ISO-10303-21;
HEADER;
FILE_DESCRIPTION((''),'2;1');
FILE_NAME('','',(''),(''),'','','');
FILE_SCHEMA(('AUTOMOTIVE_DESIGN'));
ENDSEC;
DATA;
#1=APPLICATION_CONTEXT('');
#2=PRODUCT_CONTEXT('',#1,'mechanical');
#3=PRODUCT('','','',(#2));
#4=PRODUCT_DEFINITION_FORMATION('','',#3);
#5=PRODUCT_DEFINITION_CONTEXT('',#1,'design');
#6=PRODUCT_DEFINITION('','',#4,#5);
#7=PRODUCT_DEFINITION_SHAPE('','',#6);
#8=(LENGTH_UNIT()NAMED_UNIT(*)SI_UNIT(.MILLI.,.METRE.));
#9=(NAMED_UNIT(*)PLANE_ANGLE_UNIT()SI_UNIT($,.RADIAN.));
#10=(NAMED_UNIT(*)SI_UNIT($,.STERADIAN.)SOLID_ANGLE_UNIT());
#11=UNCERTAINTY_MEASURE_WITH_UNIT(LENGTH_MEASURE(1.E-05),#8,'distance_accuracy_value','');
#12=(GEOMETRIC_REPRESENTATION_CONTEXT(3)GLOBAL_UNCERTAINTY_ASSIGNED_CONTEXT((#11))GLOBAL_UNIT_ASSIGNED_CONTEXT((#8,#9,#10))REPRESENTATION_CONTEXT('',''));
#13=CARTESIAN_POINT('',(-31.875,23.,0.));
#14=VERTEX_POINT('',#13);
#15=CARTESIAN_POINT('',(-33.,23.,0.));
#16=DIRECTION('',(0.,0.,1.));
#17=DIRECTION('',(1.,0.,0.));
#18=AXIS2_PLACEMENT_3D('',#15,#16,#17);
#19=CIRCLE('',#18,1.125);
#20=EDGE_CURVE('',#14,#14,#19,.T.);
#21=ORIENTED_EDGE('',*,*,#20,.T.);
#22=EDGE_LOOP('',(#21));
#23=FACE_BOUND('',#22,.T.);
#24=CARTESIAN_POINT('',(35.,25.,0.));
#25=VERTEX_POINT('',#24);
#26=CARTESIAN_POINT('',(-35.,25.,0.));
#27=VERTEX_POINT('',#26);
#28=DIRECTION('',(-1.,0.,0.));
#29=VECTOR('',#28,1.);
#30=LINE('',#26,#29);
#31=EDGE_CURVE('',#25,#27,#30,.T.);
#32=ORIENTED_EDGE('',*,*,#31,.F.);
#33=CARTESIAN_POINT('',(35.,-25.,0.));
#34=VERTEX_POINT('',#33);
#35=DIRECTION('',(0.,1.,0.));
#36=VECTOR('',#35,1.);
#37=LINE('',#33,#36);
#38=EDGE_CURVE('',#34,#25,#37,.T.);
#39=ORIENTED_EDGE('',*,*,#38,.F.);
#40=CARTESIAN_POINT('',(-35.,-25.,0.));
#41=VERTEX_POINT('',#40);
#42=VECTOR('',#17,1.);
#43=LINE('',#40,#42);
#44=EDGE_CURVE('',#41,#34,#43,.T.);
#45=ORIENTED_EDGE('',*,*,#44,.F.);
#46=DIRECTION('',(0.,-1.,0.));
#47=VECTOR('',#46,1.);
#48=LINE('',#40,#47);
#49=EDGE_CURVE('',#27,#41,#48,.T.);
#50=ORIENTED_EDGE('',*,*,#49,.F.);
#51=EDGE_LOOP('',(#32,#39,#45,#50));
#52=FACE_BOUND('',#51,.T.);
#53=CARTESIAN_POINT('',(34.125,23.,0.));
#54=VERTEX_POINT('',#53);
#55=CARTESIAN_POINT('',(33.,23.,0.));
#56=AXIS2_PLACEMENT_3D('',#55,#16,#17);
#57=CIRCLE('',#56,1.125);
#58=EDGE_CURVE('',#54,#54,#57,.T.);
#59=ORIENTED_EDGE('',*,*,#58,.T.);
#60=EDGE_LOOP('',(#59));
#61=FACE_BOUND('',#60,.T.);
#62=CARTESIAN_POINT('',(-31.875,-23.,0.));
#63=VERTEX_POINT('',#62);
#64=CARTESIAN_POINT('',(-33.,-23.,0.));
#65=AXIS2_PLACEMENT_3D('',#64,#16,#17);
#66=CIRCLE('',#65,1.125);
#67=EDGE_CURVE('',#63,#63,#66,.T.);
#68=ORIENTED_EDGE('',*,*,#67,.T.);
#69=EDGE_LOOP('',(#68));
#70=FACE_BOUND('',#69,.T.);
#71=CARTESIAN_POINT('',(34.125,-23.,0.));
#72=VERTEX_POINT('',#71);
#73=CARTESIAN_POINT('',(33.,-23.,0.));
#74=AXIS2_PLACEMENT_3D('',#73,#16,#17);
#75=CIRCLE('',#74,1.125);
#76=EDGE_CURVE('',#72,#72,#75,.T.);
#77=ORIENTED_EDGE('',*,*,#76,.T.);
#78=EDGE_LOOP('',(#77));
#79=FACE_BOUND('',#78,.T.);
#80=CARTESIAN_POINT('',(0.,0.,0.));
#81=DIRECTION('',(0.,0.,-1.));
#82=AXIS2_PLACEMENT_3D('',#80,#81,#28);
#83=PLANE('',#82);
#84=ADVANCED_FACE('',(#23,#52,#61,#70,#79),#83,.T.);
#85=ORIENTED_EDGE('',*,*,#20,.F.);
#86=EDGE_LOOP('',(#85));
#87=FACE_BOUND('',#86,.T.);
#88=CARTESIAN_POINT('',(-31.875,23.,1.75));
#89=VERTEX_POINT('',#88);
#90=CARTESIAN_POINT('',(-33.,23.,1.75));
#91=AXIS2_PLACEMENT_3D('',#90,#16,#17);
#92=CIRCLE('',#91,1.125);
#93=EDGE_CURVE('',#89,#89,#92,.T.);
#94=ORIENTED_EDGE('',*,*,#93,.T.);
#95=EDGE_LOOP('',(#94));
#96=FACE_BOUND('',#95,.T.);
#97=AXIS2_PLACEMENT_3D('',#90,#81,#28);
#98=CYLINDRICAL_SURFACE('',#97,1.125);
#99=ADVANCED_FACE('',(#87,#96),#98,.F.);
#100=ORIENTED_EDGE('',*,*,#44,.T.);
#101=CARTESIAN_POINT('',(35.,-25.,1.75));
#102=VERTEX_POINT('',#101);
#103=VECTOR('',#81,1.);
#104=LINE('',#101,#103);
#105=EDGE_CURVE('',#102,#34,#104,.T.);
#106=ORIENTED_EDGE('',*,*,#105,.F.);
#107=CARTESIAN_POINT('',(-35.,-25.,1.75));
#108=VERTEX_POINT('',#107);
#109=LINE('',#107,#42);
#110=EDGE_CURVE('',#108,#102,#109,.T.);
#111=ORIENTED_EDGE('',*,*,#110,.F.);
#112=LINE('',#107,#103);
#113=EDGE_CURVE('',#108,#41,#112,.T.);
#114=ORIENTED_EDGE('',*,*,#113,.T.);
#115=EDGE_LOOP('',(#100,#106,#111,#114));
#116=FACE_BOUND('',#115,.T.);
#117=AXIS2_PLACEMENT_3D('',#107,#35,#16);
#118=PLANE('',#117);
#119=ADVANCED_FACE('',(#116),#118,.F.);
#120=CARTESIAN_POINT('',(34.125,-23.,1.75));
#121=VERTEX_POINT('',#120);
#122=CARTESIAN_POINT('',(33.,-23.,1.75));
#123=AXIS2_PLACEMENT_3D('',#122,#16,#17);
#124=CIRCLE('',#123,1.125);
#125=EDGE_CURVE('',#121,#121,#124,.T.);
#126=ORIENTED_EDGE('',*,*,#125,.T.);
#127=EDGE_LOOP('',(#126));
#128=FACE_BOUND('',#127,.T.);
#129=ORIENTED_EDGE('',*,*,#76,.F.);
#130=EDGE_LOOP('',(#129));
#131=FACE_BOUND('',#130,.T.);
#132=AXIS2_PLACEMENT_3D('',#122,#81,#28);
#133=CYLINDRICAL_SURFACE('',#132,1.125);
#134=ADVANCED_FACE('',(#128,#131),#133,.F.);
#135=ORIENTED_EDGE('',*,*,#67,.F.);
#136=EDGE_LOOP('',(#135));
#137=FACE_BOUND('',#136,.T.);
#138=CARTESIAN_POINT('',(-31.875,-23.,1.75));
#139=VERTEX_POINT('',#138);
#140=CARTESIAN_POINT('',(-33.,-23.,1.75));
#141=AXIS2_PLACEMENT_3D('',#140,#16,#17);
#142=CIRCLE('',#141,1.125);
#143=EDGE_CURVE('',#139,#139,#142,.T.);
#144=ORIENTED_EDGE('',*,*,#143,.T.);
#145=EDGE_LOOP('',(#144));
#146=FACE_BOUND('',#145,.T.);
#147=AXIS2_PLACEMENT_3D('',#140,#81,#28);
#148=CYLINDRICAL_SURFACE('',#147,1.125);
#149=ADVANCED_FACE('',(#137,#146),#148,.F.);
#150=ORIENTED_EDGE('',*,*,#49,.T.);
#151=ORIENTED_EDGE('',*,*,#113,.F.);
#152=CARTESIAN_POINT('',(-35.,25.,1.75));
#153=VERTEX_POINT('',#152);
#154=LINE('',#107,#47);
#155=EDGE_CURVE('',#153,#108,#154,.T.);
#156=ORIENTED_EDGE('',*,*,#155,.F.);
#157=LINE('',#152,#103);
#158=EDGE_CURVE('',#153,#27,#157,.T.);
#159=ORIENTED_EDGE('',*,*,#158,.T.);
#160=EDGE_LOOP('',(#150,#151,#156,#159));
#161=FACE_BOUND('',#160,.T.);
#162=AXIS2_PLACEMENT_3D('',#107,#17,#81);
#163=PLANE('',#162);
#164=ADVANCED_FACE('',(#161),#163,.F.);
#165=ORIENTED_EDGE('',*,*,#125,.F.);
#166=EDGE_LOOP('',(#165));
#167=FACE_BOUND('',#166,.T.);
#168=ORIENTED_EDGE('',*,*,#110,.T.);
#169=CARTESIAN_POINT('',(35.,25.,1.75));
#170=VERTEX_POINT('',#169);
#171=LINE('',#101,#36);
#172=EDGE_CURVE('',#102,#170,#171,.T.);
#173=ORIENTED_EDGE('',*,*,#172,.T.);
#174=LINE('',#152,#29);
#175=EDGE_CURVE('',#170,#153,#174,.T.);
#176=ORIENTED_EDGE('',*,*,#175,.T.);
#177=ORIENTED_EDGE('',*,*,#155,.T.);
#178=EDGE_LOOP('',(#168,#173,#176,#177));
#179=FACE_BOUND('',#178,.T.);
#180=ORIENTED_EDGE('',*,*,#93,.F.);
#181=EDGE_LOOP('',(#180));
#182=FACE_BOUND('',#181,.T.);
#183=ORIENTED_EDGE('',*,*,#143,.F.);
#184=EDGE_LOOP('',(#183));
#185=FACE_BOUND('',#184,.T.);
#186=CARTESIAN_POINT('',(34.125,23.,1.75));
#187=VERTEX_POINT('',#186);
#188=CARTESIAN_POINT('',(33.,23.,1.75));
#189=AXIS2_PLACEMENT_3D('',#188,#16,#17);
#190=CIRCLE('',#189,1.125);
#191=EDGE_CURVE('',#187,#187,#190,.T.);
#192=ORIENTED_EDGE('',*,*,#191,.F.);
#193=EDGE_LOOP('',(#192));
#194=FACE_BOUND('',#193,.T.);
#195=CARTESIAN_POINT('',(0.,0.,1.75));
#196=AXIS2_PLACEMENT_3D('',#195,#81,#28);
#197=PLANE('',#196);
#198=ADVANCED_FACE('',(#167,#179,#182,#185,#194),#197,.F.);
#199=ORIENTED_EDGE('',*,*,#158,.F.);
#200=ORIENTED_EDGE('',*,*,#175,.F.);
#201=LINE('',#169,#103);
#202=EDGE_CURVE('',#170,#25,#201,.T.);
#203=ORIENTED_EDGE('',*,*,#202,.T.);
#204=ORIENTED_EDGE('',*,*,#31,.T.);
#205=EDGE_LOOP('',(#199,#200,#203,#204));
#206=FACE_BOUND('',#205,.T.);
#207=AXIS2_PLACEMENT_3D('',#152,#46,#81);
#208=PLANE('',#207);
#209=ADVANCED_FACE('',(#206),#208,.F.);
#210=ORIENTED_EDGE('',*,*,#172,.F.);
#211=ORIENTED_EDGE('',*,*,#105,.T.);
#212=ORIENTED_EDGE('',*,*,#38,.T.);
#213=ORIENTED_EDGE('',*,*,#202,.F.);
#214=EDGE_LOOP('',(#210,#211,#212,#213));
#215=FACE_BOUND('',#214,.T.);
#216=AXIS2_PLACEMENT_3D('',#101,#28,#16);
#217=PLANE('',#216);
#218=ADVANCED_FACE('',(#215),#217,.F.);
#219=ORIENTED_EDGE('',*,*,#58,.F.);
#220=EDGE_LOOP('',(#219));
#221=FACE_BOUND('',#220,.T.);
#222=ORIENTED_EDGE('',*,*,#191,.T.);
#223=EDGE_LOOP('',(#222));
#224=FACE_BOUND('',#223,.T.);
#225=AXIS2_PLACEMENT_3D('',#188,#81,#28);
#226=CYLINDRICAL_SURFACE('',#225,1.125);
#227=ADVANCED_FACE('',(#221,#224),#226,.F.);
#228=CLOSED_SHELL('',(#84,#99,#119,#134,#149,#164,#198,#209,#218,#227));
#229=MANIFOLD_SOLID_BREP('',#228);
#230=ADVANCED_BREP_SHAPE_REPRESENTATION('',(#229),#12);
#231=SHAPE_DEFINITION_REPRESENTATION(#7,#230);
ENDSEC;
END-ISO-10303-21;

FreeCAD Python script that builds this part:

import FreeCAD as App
import Part
import Sketcher
from FreeCAD import Vector
Q = App.Units.Quantity

doc = App.newDocument("Part")
body = doc.addObject("PartDesign::Body", "Body")

sketch1 = body.newObject("Sketcher::SketchObject", "Sketch")
sketch1.AttachmentSupport = (doc.getObject("XY_Plane"), [""])
sketch1.MapMode = "FlatFace"
sketch1.addGeometry([
    Part.LineSegment(Vector(-35, 25, 0), Vector(-35, -25, 0)),
    Part.LineSegment(Vector(-35, -25, 0), Vector(35, -25, 0)),
    Part.LineSegment(Vector(35, -25, 0), Vector(35, 25, 0)),
    Part.LineSegment(Vector(35, 25, 0), Vector(-35, 25, 0)),
    Part.Circle(Vector(-33, -23, 0), Vector(0, 0, 1), 1.1),
    Part.Circle(Vector(33, -23, 0), Vector(0, 0, 1), 1.1),
    Part.Circle(Vector(-33, 23, 0), Vector(0, 0, 1), 1.1),
    Part.Circle(Vector(33, 23, 0), Vector(0, 0, 1), 1.1),
], False)
sketch1.addConstraint([
    Sketcher.Constraint("Coincident", 0, 2, 1, 1),
    Sketcher.Constraint("Coincident", 1, 2, 2, 1),
    Sketcher.Constraint("Coincident", 2, 2, 3, 1),
    Sketcher.Constraint("Coincident", 3, 2, 0, 1),
    Sketcher.Constraint("Vertical", 0),
    Sketcher.Constraint("Horizontal", 1),
    Sketcher.Constraint("Vertical", 2),
    Sketcher.Constraint("Horizontal", 3),
    Sketcher.Constraint("Equal", 4, 5),
    Sketcher.Constraint("Equal", 5, 6),
    Sketcher.Constraint("Equal", 6, 7),
    Sketcher.Constraint("Symmetric", 5, 3, 6, 3, -1, 1),
    Sketcher.Constraint("Symmetric", 4, 3, 7, 3, -1, 1),
    Sketcher.Constraint("Symmetric", 0, 2, 2, 2, -1, 1),
    Sketcher.Constraint("Symmetric", 4, 3, 5, 3, -2),
    Sketcher.Constraint("Diameter", 4, Q("2.25 mm")),
    Sketcher.Constraint("DistanceX", 1, 1, 1, 2, Q("70 mm")),
    Sketcher.Constraint("DistanceY", 0, 2, 0, 1, Q("50 mm")),
    Sketcher.Constraint("DistanceX", 4, 3, -1, 1, Q("33 mm")),
    Sketcher.Constraint("DistanceY", 4, 3, -1, 1, Q("23 mm")),
])
pad1 = body.newObject("PartDesign::Pad", "Pad")
pad1.Profile = sketch1
pad1.Length = 1.75

doc.recompute()
